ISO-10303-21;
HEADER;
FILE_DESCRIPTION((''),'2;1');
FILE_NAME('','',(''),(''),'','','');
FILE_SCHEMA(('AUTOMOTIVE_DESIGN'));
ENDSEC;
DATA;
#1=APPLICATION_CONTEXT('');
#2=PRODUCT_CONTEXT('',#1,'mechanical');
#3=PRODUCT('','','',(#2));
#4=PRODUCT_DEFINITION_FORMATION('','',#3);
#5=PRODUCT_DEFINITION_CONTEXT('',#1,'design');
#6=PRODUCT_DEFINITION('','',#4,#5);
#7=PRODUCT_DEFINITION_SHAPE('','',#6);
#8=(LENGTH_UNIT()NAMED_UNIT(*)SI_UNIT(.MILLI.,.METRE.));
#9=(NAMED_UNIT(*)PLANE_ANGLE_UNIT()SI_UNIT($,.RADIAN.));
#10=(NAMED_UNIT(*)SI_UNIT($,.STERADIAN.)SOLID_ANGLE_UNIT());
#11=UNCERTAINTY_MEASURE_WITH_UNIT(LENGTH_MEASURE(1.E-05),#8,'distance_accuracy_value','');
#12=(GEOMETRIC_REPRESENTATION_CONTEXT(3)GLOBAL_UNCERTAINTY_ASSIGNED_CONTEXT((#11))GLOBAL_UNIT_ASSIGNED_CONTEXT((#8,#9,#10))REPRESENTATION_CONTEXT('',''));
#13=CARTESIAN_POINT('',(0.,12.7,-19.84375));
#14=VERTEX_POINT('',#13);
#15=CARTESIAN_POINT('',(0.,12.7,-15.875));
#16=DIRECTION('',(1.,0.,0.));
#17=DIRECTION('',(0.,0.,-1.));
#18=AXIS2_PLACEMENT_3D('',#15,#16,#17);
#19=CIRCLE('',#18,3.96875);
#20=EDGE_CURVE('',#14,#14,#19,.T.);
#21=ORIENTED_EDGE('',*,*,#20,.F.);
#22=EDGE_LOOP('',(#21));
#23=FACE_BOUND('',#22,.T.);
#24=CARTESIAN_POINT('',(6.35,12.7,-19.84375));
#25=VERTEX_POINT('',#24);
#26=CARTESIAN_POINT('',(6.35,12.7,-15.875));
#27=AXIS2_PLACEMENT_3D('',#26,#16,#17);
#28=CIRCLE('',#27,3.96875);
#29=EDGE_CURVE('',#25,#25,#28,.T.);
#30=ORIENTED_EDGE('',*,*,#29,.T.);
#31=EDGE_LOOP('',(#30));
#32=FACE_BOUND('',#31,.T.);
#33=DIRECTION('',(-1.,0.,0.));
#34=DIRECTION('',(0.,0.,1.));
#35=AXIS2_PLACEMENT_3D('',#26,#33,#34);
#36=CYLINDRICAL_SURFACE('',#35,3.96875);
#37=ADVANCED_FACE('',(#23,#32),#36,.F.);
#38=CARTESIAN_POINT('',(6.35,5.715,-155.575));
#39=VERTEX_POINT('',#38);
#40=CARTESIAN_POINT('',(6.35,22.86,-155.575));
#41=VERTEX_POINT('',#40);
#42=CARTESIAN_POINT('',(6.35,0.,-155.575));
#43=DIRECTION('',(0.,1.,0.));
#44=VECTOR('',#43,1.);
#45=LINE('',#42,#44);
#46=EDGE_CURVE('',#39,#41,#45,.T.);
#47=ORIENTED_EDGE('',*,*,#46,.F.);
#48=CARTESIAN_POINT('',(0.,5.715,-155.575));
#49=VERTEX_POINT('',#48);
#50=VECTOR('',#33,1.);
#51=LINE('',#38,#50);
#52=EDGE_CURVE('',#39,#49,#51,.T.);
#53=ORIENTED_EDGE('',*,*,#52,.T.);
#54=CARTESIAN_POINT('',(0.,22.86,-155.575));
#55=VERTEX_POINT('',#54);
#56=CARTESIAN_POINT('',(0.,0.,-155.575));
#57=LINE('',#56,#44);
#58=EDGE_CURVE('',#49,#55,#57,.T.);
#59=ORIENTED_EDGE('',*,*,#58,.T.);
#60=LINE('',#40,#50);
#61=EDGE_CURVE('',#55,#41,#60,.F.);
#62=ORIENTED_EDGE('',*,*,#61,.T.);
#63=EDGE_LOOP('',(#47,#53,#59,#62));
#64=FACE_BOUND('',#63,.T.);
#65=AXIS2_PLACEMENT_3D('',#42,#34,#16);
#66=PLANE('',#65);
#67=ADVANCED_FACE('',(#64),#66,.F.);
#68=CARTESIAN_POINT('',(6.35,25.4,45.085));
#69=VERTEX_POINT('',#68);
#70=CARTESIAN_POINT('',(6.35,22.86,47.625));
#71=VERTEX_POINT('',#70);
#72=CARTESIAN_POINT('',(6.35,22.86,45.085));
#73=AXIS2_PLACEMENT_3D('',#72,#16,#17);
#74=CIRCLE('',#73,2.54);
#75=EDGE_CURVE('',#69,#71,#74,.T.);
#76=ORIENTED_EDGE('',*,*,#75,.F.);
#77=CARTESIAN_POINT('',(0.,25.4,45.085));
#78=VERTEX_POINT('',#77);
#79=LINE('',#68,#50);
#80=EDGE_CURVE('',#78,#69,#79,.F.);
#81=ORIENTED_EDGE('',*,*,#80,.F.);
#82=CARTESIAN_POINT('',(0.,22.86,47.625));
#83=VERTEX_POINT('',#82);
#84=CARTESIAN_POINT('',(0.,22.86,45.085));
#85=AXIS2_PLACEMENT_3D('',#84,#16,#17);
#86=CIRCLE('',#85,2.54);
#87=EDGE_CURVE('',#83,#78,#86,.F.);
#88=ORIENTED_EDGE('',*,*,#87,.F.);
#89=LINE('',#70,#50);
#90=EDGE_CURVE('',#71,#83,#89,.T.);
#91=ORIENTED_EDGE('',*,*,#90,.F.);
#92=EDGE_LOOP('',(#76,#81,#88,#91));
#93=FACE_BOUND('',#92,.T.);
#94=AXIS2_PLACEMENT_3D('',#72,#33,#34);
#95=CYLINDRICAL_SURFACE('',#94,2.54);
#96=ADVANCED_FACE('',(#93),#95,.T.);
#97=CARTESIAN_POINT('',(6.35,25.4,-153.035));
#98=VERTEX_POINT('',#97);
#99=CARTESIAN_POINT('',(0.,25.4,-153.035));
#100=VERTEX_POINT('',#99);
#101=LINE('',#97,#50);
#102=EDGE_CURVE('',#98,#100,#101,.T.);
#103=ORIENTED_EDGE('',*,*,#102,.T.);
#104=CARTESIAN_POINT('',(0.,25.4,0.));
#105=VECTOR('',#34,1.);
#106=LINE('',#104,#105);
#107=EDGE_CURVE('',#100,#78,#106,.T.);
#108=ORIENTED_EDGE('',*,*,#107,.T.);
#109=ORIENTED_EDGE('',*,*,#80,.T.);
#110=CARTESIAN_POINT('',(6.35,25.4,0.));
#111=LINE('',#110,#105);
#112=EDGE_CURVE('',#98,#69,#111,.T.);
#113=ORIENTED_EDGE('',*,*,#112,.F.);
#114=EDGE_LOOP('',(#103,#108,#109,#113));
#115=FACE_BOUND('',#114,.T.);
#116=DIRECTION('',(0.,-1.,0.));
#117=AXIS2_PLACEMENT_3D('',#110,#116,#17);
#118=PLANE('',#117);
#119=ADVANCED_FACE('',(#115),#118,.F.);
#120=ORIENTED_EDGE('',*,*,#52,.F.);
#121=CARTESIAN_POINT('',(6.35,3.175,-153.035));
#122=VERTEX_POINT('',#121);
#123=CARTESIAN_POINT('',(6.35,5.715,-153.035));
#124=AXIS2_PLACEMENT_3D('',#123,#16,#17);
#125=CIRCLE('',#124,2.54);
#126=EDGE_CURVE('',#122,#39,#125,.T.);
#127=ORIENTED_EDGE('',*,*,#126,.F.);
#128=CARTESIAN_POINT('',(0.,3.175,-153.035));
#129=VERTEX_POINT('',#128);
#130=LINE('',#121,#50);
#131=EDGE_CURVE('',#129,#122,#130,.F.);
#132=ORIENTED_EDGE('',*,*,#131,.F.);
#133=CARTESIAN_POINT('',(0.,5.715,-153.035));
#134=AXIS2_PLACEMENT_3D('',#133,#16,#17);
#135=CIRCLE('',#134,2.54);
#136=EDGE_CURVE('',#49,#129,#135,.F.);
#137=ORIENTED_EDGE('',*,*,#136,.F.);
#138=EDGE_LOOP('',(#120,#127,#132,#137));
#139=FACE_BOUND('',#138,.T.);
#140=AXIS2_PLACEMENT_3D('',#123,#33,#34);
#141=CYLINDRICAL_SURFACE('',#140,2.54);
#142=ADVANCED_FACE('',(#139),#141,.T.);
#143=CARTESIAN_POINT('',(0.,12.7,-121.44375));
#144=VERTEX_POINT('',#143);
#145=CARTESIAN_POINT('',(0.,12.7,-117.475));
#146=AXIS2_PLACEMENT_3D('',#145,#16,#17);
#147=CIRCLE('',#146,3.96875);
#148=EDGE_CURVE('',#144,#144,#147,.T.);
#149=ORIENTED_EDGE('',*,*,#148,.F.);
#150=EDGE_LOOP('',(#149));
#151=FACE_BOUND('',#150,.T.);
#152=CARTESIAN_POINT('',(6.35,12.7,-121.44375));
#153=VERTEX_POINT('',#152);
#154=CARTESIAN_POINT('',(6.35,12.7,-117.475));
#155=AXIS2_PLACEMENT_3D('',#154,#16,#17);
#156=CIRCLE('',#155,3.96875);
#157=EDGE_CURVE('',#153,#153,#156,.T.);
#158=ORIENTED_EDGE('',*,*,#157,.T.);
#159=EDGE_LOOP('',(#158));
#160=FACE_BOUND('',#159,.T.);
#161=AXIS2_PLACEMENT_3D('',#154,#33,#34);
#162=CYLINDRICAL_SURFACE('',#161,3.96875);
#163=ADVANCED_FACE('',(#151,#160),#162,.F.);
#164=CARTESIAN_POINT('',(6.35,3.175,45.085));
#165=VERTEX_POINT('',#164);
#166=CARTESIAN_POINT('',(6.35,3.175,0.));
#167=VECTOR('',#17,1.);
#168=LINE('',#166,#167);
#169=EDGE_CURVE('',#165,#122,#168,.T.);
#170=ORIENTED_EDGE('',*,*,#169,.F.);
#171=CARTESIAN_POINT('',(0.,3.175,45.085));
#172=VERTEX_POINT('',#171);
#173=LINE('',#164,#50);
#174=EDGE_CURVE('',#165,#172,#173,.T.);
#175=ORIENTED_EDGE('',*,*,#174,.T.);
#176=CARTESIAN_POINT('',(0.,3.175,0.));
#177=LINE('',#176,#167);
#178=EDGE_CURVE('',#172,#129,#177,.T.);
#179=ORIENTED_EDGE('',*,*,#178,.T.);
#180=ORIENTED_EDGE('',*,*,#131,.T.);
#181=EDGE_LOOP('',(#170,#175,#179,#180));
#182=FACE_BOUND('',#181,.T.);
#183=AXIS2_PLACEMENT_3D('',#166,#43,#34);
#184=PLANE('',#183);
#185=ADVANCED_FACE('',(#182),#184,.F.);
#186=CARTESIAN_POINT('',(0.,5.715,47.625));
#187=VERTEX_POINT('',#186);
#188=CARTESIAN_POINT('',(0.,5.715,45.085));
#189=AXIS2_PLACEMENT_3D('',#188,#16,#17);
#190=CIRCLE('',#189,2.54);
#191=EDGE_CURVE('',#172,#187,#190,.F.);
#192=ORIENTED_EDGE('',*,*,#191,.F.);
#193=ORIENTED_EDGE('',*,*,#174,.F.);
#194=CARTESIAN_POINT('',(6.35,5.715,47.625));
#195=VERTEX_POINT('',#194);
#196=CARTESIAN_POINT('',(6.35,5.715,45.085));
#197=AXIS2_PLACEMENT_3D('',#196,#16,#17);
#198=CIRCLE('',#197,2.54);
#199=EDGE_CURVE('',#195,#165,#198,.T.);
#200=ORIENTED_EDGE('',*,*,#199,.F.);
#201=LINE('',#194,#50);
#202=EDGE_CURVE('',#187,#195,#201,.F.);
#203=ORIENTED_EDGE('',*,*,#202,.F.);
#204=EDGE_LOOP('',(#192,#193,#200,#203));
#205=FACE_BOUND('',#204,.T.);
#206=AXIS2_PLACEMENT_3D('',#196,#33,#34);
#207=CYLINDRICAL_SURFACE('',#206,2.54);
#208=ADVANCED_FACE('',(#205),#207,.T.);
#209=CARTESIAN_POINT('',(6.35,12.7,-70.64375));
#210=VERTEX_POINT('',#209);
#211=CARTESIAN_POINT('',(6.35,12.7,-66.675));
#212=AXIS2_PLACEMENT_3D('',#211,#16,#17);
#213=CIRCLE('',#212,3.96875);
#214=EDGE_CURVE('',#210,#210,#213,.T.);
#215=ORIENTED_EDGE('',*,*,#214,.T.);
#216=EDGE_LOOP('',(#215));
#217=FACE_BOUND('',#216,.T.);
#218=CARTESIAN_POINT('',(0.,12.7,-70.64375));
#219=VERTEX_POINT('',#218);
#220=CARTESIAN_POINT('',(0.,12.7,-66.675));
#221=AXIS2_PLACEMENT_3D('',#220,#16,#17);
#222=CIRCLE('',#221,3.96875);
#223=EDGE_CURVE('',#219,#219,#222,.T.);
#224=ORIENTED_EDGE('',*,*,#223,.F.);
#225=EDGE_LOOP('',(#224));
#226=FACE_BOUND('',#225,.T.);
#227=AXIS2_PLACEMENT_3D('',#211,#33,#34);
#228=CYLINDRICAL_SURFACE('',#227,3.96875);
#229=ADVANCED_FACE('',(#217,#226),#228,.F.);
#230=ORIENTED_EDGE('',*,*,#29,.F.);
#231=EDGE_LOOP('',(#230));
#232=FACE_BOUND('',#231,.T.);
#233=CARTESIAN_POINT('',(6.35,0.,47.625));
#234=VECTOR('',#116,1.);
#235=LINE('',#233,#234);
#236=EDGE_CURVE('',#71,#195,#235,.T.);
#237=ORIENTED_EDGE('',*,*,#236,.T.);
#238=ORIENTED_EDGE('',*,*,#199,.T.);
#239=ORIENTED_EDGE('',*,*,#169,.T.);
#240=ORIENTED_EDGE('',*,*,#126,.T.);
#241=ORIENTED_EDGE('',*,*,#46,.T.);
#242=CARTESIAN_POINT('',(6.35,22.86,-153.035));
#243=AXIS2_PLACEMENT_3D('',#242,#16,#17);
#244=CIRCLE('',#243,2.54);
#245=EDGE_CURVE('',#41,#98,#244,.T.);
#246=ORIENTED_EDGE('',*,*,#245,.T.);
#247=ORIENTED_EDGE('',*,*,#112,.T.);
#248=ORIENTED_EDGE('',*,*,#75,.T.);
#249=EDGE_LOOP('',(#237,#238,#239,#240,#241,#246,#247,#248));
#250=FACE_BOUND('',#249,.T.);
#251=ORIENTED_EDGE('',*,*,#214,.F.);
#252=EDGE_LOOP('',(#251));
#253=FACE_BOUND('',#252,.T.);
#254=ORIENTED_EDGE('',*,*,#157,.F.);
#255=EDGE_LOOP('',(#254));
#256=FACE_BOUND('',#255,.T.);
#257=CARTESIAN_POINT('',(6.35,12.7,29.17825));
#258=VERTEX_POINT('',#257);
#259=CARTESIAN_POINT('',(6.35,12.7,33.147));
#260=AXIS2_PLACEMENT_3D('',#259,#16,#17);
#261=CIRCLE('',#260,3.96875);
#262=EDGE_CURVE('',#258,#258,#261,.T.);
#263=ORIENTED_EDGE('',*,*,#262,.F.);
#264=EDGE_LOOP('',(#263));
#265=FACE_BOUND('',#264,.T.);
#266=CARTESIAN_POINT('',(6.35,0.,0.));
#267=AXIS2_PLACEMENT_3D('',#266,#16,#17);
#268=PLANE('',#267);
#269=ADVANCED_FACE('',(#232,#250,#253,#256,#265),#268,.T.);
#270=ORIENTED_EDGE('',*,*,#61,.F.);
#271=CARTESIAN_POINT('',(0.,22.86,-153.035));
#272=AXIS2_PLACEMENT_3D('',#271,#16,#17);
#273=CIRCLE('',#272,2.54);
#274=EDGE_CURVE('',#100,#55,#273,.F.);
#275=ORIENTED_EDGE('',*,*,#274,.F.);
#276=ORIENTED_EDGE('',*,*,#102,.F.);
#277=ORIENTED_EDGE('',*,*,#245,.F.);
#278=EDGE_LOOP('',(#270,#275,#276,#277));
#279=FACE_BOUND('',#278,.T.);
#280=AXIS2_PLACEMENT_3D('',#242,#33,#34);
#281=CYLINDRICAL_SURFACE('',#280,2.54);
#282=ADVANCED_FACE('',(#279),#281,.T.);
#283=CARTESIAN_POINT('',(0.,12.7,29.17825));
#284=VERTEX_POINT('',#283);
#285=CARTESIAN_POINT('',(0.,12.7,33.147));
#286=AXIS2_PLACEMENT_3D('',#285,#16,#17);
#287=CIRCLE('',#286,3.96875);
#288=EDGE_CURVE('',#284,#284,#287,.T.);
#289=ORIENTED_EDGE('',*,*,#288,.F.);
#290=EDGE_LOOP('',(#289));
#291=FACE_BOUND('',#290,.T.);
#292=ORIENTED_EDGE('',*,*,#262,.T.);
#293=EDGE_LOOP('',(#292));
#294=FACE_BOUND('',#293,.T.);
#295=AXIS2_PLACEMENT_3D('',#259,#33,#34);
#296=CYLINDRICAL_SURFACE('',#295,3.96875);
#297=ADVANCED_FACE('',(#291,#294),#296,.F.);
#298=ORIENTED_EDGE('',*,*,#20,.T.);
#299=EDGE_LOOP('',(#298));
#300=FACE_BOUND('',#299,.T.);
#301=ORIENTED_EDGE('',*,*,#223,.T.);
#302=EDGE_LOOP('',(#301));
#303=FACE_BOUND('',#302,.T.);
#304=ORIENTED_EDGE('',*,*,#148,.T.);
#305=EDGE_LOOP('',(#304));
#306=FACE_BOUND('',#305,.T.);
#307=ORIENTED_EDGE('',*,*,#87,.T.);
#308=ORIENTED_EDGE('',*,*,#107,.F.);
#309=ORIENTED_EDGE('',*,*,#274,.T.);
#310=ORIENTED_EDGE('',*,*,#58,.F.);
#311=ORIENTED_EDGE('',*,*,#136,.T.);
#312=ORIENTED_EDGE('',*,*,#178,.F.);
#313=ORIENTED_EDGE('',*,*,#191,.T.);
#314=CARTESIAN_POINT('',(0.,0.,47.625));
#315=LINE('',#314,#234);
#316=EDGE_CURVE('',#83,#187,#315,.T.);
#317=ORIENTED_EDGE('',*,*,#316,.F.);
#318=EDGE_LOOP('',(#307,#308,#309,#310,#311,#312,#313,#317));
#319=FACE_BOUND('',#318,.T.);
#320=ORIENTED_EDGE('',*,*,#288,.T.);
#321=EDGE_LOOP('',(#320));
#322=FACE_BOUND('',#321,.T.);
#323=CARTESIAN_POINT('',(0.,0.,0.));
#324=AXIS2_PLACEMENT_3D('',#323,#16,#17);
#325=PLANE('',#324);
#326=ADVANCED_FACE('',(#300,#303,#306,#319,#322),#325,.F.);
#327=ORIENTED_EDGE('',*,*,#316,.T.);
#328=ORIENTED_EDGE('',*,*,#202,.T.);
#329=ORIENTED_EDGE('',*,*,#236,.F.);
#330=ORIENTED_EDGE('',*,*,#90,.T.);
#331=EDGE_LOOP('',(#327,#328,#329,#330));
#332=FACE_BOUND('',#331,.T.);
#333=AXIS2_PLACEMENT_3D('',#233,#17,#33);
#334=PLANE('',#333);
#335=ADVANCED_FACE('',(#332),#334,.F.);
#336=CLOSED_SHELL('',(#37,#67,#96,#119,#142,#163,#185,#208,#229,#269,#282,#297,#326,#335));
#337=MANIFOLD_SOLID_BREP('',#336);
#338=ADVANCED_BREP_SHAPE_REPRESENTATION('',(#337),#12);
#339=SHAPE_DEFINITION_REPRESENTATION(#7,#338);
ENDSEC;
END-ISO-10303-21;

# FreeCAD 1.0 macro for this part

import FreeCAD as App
import Part
import Sketcher
Q = App.Units.Quantity


def edges_at(feature, points):
    """Names of the edges that pass closest to the given points."""
    edges = feature.Shape.Edges
    near = lambda p: min(range(len(edges)), key=lambda i: edges[i].distToShape(Part.Vertex(*p))[0])
    return sorted({f"Edge{near(p) + 1}" for p in points})


def add_polygon(sketch, points):
    """Adds a closed chain of lines whose ends are joined by coincident constraints."""
    first, n = sketch.GeometryCount, len(points)
    for a, b in zip(points, points[1:] + points[:1]):
        sketch.addGeometry(Part.LineSegment(App.Vector(*a, 0), App.Vector(*b, 0)), False)
    for i in range(n):
        sketch.addConstraint(Sketcher.Constraint("Coincident", first + i, 2, first + (i + 1) % n, 1))

doc = App.newDocument("Part")
body = doc.addObject("PartDesign::Body", "Body")

sketch1 = body.newObject("Sketcher::SketchObject", "Sketch")
sketch1.AttachmentSupport = (doc.getObject("YZ_Plane"), [""])
sketch1.MapMode = "FlatFace"
add_polygon(sketch1, [(25.4, 47.6), (3.2, 47.6), (3.2, -155.6), (25.4, -155.6)])
sketch1.addGeometry(Part.Circle(App.Vector(12.7, 33.1, 0), App.Vector(0, 0, 1), 4), False)
sketch1.addGeometry(Part.Circle(App.Vector(12.7, -15.9, 0), App.Vector(0, 0, 1), 4), False)
sketch1.addGeometry(Part.Circle(App.Vector(12.7, -66.7, 0), App.Vector(0, 0, 1), 4), False)
sketch1.addGeometry(Part.Circle(App.Vector(12.7, -117.5, 0), App.Vector(0, 0, 1), 4), False)
sketch1.addConstraint([
    Sketcher.Constraint("Horizontal", 0),
    Sketcher.Constraint("Vertical", 1),
    Sketcher.Constraint("Horizontal", 2),
    Sketcher.Constraint("Vertical", 3),
    Sketcher.Constraint("Equal", 4, 5),
    Sketcher.Constraint("Equal", 5, 6),
    Sketcher.Constraint("Equal", 6, 7),
    Sketcher.Constraint("Vertical", 4, 3, 5, 3),
    Sketcher.Constraint("Vertical", 5, 3, 6, 3),
    Sketcher.Constraint("Vertical", 6, 3, 7, 3),
    Sketcher.Constraint("DistanceY", 1, 2, 1, 1, Q("8 in")),
    Sketcher.Constraint("Diameter", 4, Q("0.3125 in")),
    Sketcher.Constraint("DistanceX", -1, 1, 2, 2, Q("1 in")),
    Sketcher.Constraint("DistanceY", 6, 3, 5, 3, Q("2 in")),
    Sketcher.Constraint("DistanceY", 7, 3, 6, 3, Q("2 in")),
    Sketcher.Constraint("DistanceX", -1, 1, 4, 3, Q("0.5 in")),
    Sketcher.Constraint("DistanceY", 5, 3, 0, 2, Q("2.5 in")),
    Sketcher.Constraint("DistanceX", 0, 2, 0, 1, Q("0.875 in")),
    Sketcher.Constraint("DistanceY", 5, 3, 4, 3, Q("1.93 in")),
    Sketcher.Constraint("DistanceY", -1, 1, 4, 3, Q("1.305 in")),
])
pad1 = body.newObject("PartDesign::Pad", "Pad")
pad1.Profile = sketch1
pad1.Length = Q("0.25 in")
doc.recompute()

fillet = body.newObject("PartDesign::Fillet", "Fillet")
fillet.Base = (pad1, edges_at(pad1, [
    (3.175, 25.4, 47.625),
    (3.175, 25.4, -155.575),
    (3.175, 3.175, -155.575),
    (3.175, 3.175, 47.625),
]))
fillet.Radius = Q("0.1 in")

doc.recompute()
